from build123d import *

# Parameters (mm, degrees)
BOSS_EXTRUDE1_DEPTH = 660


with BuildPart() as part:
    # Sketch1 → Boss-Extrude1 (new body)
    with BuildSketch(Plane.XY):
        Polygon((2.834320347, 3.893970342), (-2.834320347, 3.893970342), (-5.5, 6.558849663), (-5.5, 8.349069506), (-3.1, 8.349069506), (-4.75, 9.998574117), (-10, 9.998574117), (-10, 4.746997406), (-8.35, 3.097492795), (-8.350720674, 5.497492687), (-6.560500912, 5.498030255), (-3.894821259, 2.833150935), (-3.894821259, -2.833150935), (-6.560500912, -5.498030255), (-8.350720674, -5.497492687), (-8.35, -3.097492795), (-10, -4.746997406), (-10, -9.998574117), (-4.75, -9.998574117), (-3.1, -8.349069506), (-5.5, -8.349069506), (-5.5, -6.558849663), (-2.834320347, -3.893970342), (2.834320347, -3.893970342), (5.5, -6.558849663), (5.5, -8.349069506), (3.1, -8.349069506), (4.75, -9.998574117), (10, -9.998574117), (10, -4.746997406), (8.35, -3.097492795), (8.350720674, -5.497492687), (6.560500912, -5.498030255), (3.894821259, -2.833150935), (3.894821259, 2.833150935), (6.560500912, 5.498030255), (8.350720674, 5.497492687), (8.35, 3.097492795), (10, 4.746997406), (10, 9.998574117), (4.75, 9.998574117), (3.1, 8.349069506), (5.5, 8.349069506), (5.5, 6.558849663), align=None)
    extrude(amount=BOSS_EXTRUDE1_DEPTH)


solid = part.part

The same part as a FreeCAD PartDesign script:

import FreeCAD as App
import Part
import Sketcher
from FreeCAD import Vector


def add_polygon(sketch, points):
    """Adds a closed chain of lines whose ends are joined by coincident constraints."""
    first, n = sketch.GeometryCount, len(points)
    for a, b in zip(points, points[1:] + points[:1]):
        sketch.addGeometry(Part.LineSegment(App.Vector(*a, 0), App.Vector(*b, 0)), False)
    for i in range(n):
        sketch.addConstraint(Sketcher.Constraint("Coincident", first + i, 2, first + (i + 1) % n, 1))

doc = App.newDocument("Part")
body = doc.addObject("PartDesign::Body", "Body")

# Sketch on XY plane
sketch1 = body.newObject("Sketcher::SketchObject", "Sketch")
sketch1.AttachmentSupport = (doc.getObject("XY_Plane"), [""])
sketch1.MapMode = "FlatFace"
add_polygon(sketch1, [(2.8, 3.9), (-2.8, 3.9), (-5.5, 6.6), (-5.5, 8.3), (-3.1, 8.3), (-4.8, 10), (-10, 10), (-10, 4.7), (-8.3, 3.1), (-8.4, 5.5), (-6.6, 5.5), (-3.9, 2.8), (-3.9, -2.8), (-6.6, -5.5), (-8.4, -5.5), (-8.3, -3.1), (-10, -4.7), (-10, -10), (-4.8, -10), (-3.1, -8.3), (-5.5, -8.3), (-5.5, -6.6), (-2.8, -3.9), (2.8, -3.9), (5.5, -6.6), (5.5, -8.3), (3.1, -8.3), (4.8, -10), (10, -10), (10, -4.7), (8.3, -3.1), (8.4, -5.5), (6.6, -5.5), (3.9, -2.8), (3.9, 2.8), (6.6, 5.5), (8.4, 5.5), (8.3, 3.1), (10, 4.7), (10, 10), (4.8, 10), (3.1, 8.3), (5.5, 8.3), (5.5, 6.6)])  # lines 0-43
sketch1.addConstraint([
    Sketcher.Constraint("Horizontal", 0),
    Sketcher.Constraint("Vertical", 2),
    Sketcher.Constraint("Horizontal", 3),
    Sketcher.Constraint("Horizontal", 5),
    Sketcher.Constraint("Vertical", 6),
    Sketcher.Constraint("Vertical", 11),
    Sketcher.Constraint("Vertical", 16),
    Sketcher.Constraint("Horizontal", 17),
    Sketcher.Constraint("Horizontal", 19),
    Sketcher.Constraint("Vertical", 20),
    Sketcher.Constraint("Horizontal", 22),
    Sketcher.Constraint("Vertical", 24),
    Sketcher.Constraint("Horizontal", 25),
    Sketcher.Constraint("Horizontal", 27),
    Sketcher.Constraint("Vertical", 28),
    Sketcher.Constraint("Vertical", 33),
    Sketcher.Constraint("Vertical", 38),
    Sketcher.Constraint("Horizontal", 39),
    Sketcher.Constraint("Horizontal", 41),
    Sketcher.Constraint("Vertical", 42),
    Sketcher.Constraint("Symmetric", 0, 2, 22, 2, -1, 1),
    Sketcher.Constraint("Symmetric", 1, 2, 23, 2, -1, 1),
    Sketcher.Constraint("Symmetric", 3, 2, 25, 2, -1, 1),
    Sketcher.Constraint("Symmetric", 4, 2, 26, 2, -1, 1),
    Sketcher.Constraint("Symmetric", 6, 2, 28, 2, -1, 1),
    Sketcher.Constraint("Symmetric", 7, 2, 29, 2, -1, 1),
    Sketcher.Constraint("Symmetric", 8, 2, 30, 2, -1, 1),
    Sketcher.Constraint("Symmetric", 9, 2, 31, 2, -1, 1),
    Sketcher.Constraint("Symmetric", 10, 2, 32, 2, -1, 1),
    Sketcher.Constraint("Symmetric", 12, 2, 34, 2, -1, 1),
    Sketcher.Constraint("Symmetric", 13, 2, 35, 2, -1, 1),
    Sketcher.Constraint("Symmetric", 14, 2, 36, 2, -1, 1),
    Sketcher.Constraint("Symmetric", 15, 2, 37, 2, -1, 1),
    Sketcher.Constraint("Symmetric", 17, 2, 39, 2, -1, 1),
    Sketcher.Constraint("Symmetric", 18, 2, 40, 2, -1, 1),
    Sketcher.Constraint("Symmetric", 20, 2, 42, 2, -1, 1),
    Sketcher.Constraint("Symmetric", 20, 2, 23, 2, -2),
    Sketcher.Constraint("Symmetric", 18, 2, 25, 2, -2),
    Sketcher.Constraint("Symmetric", 17, 2, 26, 2, -2),
    Sketcher.Constraint("Symmetric", 15, 2, 28, 2, -2),
    Sketcher.Constraint("Symmetric", 14, 2, 29, 2, -2),
    Sketcher.Constraint("Symmetric", 13, 2, 30, 2, -2),
    Sketcher.Constraint("Symmetric", 12, 2, 31, 2, -2),
    Sketcher.Constraint("Parallel", 1, 4),
    Sketcher.Constraint("Parallel", 4, 7),
    Sketcher.Constraint("Perpendicular", 8, 9),
    Sketcher.Constraint("Parallel", 7, 10),
    Sketcher.Constraint("Parallel", 12, 15),
    Sketcher.Constraint("Parallel", 18, 21),
    Sketcher.Constraint("Parallel", 21, 34),
    Sketcher.Constraint("Parallel", 40, 43),
    Sketcher.Constraint("Equal", 4, 7),
    Sketcher.Constraint("Equal", 1, 10),
    Sketcher.Constraint("DistanceX", 3, 1, 3, 2, 2.4),
    Sketcher.Constraint("DistanceX", 5, 2, -1, 1, 10.0),
    Sketcher.Constraint("Distance", 8, 2.4),
    Sketcher.Constraint("DistanceX", 5, 2, 5, 1, 5.25),
    Sketcher.Constraint("DistanceX", 1, 2, -1, 1, 5.5),
    Sketcher.Constraint("DistanceY", 11, 2, 11, 1, 5.666302),
    Sketcher.Constraint("DistanceY", 12, 2, 0, 2, 9.392001),
    Sketcher.Constraint("DistanceX", 0, 2, 0, 1, 5.668641),
    Sketcher.Constraint("DistanceY", 2, 1, 2, 2, 1.79022),
    Sketcher.Constraint("DistanceX", 9, 2, -1, 1, 6.560501),
    Sketcher.Constraint("DistanceY", 0, 2, 2, 2, 4.455099),
    Sketcher.Constraint("DistanceX", 8, 2, 10, 2, 4.455899),
])
pad1 = body.newObject("PartDesign::Pad", "Pad")
pad1.Profile = sketch1
pad1.Length = 660

doc.recompute()
